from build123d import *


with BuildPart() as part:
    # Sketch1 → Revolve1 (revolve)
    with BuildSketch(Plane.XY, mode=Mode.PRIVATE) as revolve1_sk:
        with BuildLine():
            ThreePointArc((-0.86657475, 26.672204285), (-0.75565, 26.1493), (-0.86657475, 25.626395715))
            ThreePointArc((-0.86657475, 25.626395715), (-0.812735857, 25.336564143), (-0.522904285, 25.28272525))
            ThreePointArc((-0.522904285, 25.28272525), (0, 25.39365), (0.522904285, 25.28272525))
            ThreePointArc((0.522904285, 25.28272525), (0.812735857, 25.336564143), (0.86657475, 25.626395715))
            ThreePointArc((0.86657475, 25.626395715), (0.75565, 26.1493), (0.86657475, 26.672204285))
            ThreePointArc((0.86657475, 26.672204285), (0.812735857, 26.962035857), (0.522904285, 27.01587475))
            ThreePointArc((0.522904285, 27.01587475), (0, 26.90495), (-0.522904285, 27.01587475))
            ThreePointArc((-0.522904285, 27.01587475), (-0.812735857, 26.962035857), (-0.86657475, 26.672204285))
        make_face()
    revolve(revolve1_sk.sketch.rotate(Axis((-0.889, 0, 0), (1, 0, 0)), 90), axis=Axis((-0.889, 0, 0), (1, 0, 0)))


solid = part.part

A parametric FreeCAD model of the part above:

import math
import FreeCAD as App
import Part
import Sketcher
from FreeCAD import Vector
Q = App.Units.Quantity

doc = App.newDocument("Part")
body = doc.addObject("PartDesign::Body", "Body")

# Sketch on XY plane
sketch1 = body.newObject("Sketcher::SketchObject", "Sketch")
sketch1.AttachmentSupport = (doc.getObject("XY_Plane"), [""])
sketch1.MapMode = "FlatFace"
sketch1.addGeometry([
    Part.ArcOfCircle(Part.Circle(Vector(-2.04, 26.15, 0), Vector(0, 0, 1), 1.29), math.radians(-24), math.radians(24)),  # 0
    Part.ArcOfCircle(Part.Circle(Vector(-0.63, 25.52, 0), Vector(0, 0, 1), 0.26), math.radians(156), math.radians(294)),  # 1
    Part.ArcOfCircle(Part.Circle(Vector(0, 24.11, 0), Vector(0, 0, 1), 1.29), math.radians(66), math.radians(114)),  # 2
    Part.ArcOfCircle(Part.Circle(Vector(0.63, 25.52, 0), Vector(0, 0, 1), 0.26), math.radians(-114), math.radians(24)),  # 3
    Part.ArcOfCircle(Part.Circle(Vector(2.04, 26.15, 0), Vector(0, 0, 1), 1.29), math.radians(156), math.radians(204)),  # 4
    Part.ArcOfCircle(Part.Circle(Vector(0.63, 26.78, 0), Vector(0, 0, 1), 0.26), math.radians(-24), math.radians(114)),  # 5
    Part.ArcOfCircle(Part.Circle(Vector(0, 28.19, 0), Vector(0, 0, 1), 1.29), math.radians(-114), math.radians(-66)),  # 6
    Part.ArcOfCircle(Part.Circle(Vector(-0.63, 26.78, 0), Vector(0, 0, 1), 0.26), math.radians(66), math.radians(204)),  # 7
], False)
sketch1.addConstraint([
    Sketcher.Constraint("Tangent", 0, 1, 1, 1),
    Sketcher.Constraint("Tangent", 1, 2, 2, 2),
    Sketcher.Constraint("Tangent", 2, 1, 3, 1),
    Sketcher.Constraint("Tangent", 3, 2, 4, 2),
    Sketcher.Constraint("Tangent", 4, 1, 5, 1),
    Sketcher.Constraint("Tangent", 5, 2, 6, 2),
    Sketcher.Constraint("Tangent", 6, 1, 7, 1),
    Sketcher.Constraint("Tangent", 7, 2, 0, 2),
    Sketcher.Constraint("Equal", 0, 2),
    Sketcher.Constraint("Equal", 1, 3),
    Sketcher.Constraint("Equal", 2, 4),
    Sketcher.Constraint("Equal", 3, 5),
    Sketcher.Constraint("Equal", 4, 6),
    Sketcher.Constraint("Equal", 5, 7),
    Sketcher.Constraint("Symmetric", 1, 3, 3, 3, -2),
    Sketcher.Constraint("Symmetric", 5, 3, 7, 3, -2),
    Sketcher.Constraint("Vertical", 3, 3, 5, 3),
    Sketcher.Constraint("Radius", 0, Q("1.28796 mm")),
    Sketcher.Constraint("Radius", 1, Q("0.260382 mm")),
    Sketcher.Constraint("DistanceY", -1, 1, 0, 3, Q("26.1493 mm")),
    Sketcher.Constraint("DistanceX", 0, 3, -1, 1, Q("2.04361 mm")),
    Sketcher.Constraint("DistanceY", -1, 1, 2, 3, Q("24.10569 mm")),
])
revolution = body.newObject("PartDesign::Revolution", "Revolution")
revolution.Profile = sketch1
revolution.ReferenceAxis = (sketch1, ["H_Axis"])
revolution.Angle = 360

doc.recompute()
